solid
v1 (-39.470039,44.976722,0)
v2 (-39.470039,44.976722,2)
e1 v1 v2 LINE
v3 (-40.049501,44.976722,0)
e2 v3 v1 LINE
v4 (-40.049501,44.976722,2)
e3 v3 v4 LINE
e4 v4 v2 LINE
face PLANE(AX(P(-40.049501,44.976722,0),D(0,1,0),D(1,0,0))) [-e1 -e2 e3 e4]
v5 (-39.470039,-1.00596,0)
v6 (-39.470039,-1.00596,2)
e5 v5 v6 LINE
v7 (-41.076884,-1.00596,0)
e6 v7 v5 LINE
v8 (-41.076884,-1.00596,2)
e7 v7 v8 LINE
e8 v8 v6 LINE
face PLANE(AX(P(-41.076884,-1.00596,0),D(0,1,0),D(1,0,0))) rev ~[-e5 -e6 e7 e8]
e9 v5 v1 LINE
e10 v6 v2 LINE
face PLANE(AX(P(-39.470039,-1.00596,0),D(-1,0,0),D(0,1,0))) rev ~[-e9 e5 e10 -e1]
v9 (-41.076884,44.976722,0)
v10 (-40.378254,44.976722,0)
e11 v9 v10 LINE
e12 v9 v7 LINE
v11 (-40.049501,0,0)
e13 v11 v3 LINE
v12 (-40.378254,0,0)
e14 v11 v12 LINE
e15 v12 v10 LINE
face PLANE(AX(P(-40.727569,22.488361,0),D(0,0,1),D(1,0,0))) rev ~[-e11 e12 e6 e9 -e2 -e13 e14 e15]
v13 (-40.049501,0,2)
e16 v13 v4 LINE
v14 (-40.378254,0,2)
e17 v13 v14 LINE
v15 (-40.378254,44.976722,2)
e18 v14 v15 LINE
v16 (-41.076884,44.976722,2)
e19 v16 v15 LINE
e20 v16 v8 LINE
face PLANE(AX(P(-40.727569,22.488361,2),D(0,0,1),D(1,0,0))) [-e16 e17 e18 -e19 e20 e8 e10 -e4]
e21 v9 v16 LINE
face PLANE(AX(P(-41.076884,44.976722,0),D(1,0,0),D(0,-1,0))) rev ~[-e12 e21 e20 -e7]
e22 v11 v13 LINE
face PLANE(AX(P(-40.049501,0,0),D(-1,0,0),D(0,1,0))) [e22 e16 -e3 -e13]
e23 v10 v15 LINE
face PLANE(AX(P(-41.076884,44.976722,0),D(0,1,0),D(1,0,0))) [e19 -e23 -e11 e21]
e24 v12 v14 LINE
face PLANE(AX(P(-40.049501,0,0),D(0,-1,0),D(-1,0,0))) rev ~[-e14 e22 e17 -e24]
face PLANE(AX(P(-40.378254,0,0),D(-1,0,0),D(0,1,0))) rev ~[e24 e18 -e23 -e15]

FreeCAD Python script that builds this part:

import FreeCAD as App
import Part
import Sketcher
from FreeCAD import Vector

doc = App.newDocument("Part")
params = doc.addObject("Spreadsheet::Sheet", "Params")
for row, (alias, value) in enumerate([
    ("pad1_length", "2 mm"),
], start=1):
    params.set(f"A{row}", alias)
    params.set(f"B{row}", "=" + value)
    params.setAlias(f"B{row}", alias)

body = doc.addObject("PartDesign::Body", "Body")

sketch1 = body.newObject("Sketcher::SketchObject", "Sketch")
sketch1.AttachmentSupport = (doc.getObject("XY_Plane"), [""])
sketch1.MapMode = "FlatFace"
sketch1.addGeometry(Part.LineSegment(Vector(-41.08, 44.98, 0), Vector(-41.08, -1.01, 0)), False)
sketch1.addGeometry(Part.LineSegment(Vector(-41.08, -1.01, 0), Vector(-39.47, -1.01, 0)), False)
sketch1.addGeometry(Part.LineSegment(Vector(-39.47, -1.01, 0), Vector(-39.47, 44.98, 0)), False)
sketch1.addGeometry(Part.LineSegment(Vector(-39.47, 44.98, 0), Vector(-40.05, 44.98, 0)), False)
sketch1.addGeometry(Part.LineSegment(Vector(-40.05, 44.98, 0), Vector(-40.05, 0, 0)), False)
sketch1.addGeometry(Part.LineSegment(Vector(-40.05, 0, 0), Vector(-40.38, 0, 0)), False)
sketch1.addGeometry(Part.LineSegment(Vector(-40.38, 0, 0), Vector(-40.38, 44.98, 0)), False)
sketch1.addGeometry(Part.LineSegment(Vector(-40.38, 44.98, 0), Vector(-41.08, 44.98, 0)), False)
sketch1.addConstraint(Sketcher.Constraint("Coincident", 0, 2, 1, 1))
sketch1.addConstraint(Sketcher.Constraint("Coincident", 1, 2, 2, 1))
sketch1.addConstraint(Sketcher.Constraint("Coincident", 2, 2, 3, 1))
sketch1.addConstraint(Sketcher.Constraint("Coincident", 3, 2, 4, 1))
sketch1.addConstraint(Sketcher.Constraint("Coincident", 4, 2, 5, 1))
sketch1.addConstraint(Sketcher.Constraint("Coincident", 5, 2, 6, 1))
sketch1.addConstraint(Sketcher.Constraint("Coincident", 6, 2, 7, 1))
sketch1.addConstraint(Sketcher.Constraint("Coincident", 7, 2, 0, 1))
sketch1.addConstraint(Sketcher.Constraint("Vertical", 0))
sketch1.addConstraint(Sketcher.Constraint("Horizontal", 1))
sketch1.addConstraint(Sketcher.Constraint("Vertical", 2))
sketch1.addConstraint(Sketcher.Constraint("Horizontal", 3))
sketch1.addConstraint(Sketcher.Constraint("Vertical", 4))
sketch1.addConstraint(Sketcher.Constraint("Horizontal", 5))
sketch1.addConstraint(Sketcher.Constraint("Vertical", 6))
sketch1.addConstraint(Sketcher.Constraint("Horizontal", 7))
sketch1.addConstraint(Sketcher.Constraint("PointOnObject", 4, 2, -1))
sketch1.addConstraint(Sketcher.Constraint("Horizontal", 3, 2, 6, 2))
sketch1.addConstraint(Sketcher.Constraint("DistanceX", 3, 2, 3, 1, 0.579462))
sketch1.addConstraint(Sketcher.Constraint("DistanceX", 7, 2, 7, 1, 0.69863))
sketch1.addConstraint(Sketcher.Constraint("DistanceX", 3, 2, -1, 1, 40.049501))
sketch1.addConstraint(Sketcher.Constraint("DistanceX", 1, 1, 1, 2, 1.606845))
sketch1.addConstraint(Sketcher.Constraint("DistanceY", 0, 2, 0, 1, 45.982682))
sketch1.addConstraint(Sketcher.Constraint("DistanceY", 4, 2, 4, 1, 44.976722))
pad1 = body.newObject("PartDesign::Pad", "Pad")
pad1.Profile = sketch1
pad1.setExpression("Length", "Params.pad1_length")

doc.recompute()
